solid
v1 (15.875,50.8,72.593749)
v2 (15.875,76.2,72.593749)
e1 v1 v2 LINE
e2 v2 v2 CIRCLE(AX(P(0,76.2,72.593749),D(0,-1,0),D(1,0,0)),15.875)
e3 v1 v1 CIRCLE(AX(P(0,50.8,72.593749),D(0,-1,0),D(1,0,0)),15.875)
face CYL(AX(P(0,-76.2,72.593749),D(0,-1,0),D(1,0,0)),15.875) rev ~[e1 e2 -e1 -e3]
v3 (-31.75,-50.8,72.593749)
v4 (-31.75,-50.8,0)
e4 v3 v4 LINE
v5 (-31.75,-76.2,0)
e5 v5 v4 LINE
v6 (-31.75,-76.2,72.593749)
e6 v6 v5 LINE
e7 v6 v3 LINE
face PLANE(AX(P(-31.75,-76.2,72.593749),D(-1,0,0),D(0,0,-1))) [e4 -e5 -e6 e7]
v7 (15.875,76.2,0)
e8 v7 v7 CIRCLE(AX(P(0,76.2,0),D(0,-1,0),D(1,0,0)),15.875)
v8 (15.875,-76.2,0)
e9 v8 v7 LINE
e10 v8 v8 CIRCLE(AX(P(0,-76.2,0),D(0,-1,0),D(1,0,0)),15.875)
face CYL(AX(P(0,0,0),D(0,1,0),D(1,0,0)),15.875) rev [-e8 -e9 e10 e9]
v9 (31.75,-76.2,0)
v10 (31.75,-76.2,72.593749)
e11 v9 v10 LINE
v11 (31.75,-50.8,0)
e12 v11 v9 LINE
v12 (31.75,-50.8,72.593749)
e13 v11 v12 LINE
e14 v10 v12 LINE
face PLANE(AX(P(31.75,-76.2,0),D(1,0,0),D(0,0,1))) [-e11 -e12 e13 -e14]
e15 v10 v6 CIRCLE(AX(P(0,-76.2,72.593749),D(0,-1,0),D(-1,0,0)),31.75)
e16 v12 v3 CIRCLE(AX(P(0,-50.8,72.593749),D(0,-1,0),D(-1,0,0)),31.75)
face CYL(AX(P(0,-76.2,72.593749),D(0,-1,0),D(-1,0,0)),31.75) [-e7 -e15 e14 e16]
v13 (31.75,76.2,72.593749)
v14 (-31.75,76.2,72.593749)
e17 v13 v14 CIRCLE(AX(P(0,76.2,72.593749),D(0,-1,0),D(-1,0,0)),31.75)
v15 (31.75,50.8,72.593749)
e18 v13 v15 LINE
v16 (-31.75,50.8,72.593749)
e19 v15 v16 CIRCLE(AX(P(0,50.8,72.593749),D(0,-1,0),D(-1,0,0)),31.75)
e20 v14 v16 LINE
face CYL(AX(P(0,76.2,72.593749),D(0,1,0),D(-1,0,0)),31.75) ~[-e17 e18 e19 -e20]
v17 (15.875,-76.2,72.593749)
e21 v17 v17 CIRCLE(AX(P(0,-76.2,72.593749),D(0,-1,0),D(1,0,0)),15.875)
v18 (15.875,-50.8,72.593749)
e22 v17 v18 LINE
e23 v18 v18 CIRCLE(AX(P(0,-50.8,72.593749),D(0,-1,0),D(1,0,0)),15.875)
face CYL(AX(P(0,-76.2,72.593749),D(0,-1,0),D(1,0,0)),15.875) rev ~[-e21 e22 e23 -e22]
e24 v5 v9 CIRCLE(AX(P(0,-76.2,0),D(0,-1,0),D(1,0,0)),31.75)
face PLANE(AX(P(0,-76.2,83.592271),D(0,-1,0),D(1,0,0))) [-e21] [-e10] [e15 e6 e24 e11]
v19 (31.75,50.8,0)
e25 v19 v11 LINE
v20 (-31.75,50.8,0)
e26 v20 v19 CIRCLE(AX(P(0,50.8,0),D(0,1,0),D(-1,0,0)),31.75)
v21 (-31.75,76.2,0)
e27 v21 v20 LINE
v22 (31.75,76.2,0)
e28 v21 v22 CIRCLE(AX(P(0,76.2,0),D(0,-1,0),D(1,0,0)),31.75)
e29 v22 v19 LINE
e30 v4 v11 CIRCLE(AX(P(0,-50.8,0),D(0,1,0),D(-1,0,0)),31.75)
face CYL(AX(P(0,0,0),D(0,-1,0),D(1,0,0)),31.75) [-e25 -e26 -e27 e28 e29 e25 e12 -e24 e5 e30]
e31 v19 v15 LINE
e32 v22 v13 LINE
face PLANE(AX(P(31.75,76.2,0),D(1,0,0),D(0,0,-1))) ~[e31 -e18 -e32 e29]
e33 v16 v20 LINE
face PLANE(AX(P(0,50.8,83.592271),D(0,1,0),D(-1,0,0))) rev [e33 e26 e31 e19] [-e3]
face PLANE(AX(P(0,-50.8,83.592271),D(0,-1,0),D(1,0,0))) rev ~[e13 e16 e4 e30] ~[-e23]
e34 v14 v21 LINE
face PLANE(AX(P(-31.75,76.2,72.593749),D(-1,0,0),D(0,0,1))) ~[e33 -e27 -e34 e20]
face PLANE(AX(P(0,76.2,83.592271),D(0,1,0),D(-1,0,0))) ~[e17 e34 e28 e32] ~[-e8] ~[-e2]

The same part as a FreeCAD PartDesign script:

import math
import FreeCAD as App
import Part
import Sketcher

V = App.Vector
Q = App.Units.Quantity

doc = App.newDocument("Part")
body = doc.addObject("PartDesign::Body", "Body")

# Sketch on XZ plane
sketch1 = body.newObject("Sketcher::SketchObject", "Sketch")
sketch1.AttachmentSupport = (doc.getObject("XZ_Plane"), [""])
sketch1.MapMode = "FlatFace"
sketch1.addGeometry(Part.Circle(V(0, 0, 0), V(0, 0, 1), 31.75), False)
sketch1.addGeometry(Part.Circle(V(0, 0, 0), V(0, 0, 1), 15.875), False)
sketch1.addConstraint(Sketcher.Constraint("Coincident", 0, 3, -1, 1))
sketch1.addConstraint(Sketcher.Constraint("Coincident", 1, 3, -1, 1))
sketch1.addConstraint(Sketcher.Constraint("Diameter", 0, Q("2.5 in")))
sketch1.addConstraint(Sketcher.Constraint("Diameter", 1, Q("1.25 in")))
pad1 = body.newObject("PartDesign::Pad", "Pad")
pad1.Profile = sketch1
pad1.Length = Q("6 in")
pad1.Midplane = True

# Sketch on XZ plane
sketch2 = body.newObject("Sketcher::SketchObject", "Sketch001")
sketch2.AttachmentSupport = (doc.getObject("XZ_Plane"), [""])
sketch2.MapMode = "FlatFace"
sketch2.AttachmentOffset = App.Placement(V(0, 0, 3 * 25.4), App.Rotation())
sketch2.addGeometry(Part.ArcOfCircle(Part.Circle(V(0, 72.593749, 0), V(0, 0, 1), 31.75), math.radians(0), math.radians(180)), False)
sketch2.addGeometry(Part.LineSegment(V(-31.75, 72.593749, 0), V(-31.75, 0, 0)), False)
sketch2.addGeometry(Part.ArcOfCircle(Part.Circle(V(0, 0, 0), V(0, 0, 1), 31.75), math.radians(0), math.radians(180)), False)
sketch2.addGeometry(Part.LineSegment(V(31.75, 0, 0), V(31.75, 72.593749, 0)), False)
sketch2.addConstraint(Sketcher.Constraint("Tangent", 0, 2, 1, 1))
sketch2.addConstraint(Sketcher.Constraint("Tangent", 1, 2, 2, 2))
sketch2.addConstraint(Sketcher.Constraint("Tangent", 2, 1, 3, 1))
sketch2.addConstraint(Sketcher.Constraint("Tangent", 3, 2, 0, 1))
sketch2.addConstraint(Sketcher.Constraint("Vertical", 1))
sketch2.addConstraint(Sketcher.Constraint("Vertical", 3))
sketch2.addConstraint(Sketcher.Constraint("Coincident", 2, 3, -1, 1))
sketch2.addConstraint(Sketcher.Constraint("Radius", 0, Q("1.25 in")))
sketch2.addConstraint(Sketcher.Constraint("DistanceY", 1, 2, 1, 1, 72.593749))
pad2 = body.newObject("PartDesign::Pad", "Pad001")
pad2.Profile = sketch2
pad2.Length = Q("1 in")
pad2.Reversed = True
body2 = doc.addObject("PartDesign::Body", "Body001")
doc.recompute()

body2.BaseFeature = body
doc.recompute()

mirroring = doc.addObject("Part::Mirroring", "Mirroring")
mirroring.Source = body
mirroring.Base = V(0, 0, 0)
mirroring.Normal = V(0, -1, 0)
body3 = doc.addObject("PartDesign::Body", "Body002")
body3.BaseFeature = mirroring
boolean = body2.newObject("PartDesign::Boolean", "Boolean")
boolean.Type = "Fuse"
boolean.addObjects([body3])
doc.recompute()

# Sketch on XZ plane
sketch3 = body2.newObject("Sketcher::SketchObject", "Sketch002")
sketch3.AttachmentSupport = (doc.getObject("XZ_Plane001"), [""])
sketch3.MapMode = "FlatFace"
sketch3.AttachmentOffset = App.Placement(V(0, 0, 3 * 25.4), App.Rotation())
sketch3.addGeometry(Part.Circle(V(0, 72.593749, 0), V(0, 0, 1), 15.875), False)
sketch3.addConstraint(Sketcher.Constraint("PointOnObject", 0, 3, -2))
sketch3.addConstraint(Sketcher.Constraint("Diameter", 0, Q("1.25 in")))
sketch3.addConstraint(Sketcher.Constraint("DistanceY", -1, 1, 0, 3, 72.593749))
pocket1 = body2.newObject("PartDesign::Pocket", "Pocket")
pocket1.Profile = sketch3
pocket1.Type = "ThroughAll"
mirroring.Visibility = False

doc.recompute()
